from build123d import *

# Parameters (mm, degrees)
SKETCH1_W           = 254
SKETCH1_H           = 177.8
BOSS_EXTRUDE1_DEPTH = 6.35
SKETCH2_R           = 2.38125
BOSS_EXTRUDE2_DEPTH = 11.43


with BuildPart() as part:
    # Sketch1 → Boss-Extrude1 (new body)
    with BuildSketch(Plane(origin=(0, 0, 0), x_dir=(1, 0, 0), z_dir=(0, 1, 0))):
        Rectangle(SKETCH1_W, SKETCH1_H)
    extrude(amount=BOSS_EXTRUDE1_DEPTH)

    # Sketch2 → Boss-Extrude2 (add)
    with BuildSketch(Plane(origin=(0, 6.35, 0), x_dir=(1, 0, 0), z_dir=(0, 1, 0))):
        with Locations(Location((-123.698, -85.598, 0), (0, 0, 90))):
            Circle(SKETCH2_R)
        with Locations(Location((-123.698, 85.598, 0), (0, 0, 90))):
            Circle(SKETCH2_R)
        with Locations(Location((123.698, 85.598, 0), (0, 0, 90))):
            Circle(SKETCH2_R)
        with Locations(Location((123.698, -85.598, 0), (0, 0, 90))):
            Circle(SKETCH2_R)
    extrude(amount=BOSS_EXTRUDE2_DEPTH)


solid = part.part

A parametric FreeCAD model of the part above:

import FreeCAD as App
import Part
import Sketcher
from FreeCAD import Vector
Q = App.Units.Quantity


def add_polygon(sketch, points):
    """Adds a closed chain of lines whose ends are joined by coincident constraints."""
    first, n = sketch.GeometryCount, len(points)
    for a, b in zip(points, points[1:] + points[:1]):
        sketch.addGeometry(Part.LineSegment(App.Vector(*a, 0), App.Vector(*b, 0)), False)
    for i in range(n):
        sketch.addConstraint(Sketcher.Constraint("Coincident", first + i, 2, first + (i + 1) % n, 1))

doc = App.newDocument("Part")
body = doc.addObject("PartDesign::Body", "Body")

# Sketch on XZ plane
sketch1 = body.newObject("Sketcher::SketchObject", "Sketch")
sketch1.AttachmentSupport = (doc.getObject("XZ_Plane"), [""])
sketch1.MapMode = "FlatFace"
add_polygon(sketch1, [(-127, -89), (-127, 89), (127, 89), (127, -89)])  # lines 0-3
sketch1.addConstraint(Sketcher.Constraint("Vertical", 0))
sketch1.addConstraint(Sketcher.Constraint("Horizontal", 1))
sketch1.addConstraint(Sketcher.Constraint("Vertical", 2))
sketch1.addConstraint(Sketcher.Constraint("Horizontal", 3))
sketch1.addConstraint(Sketcher.Constraint("Symmetric", 0, 2, 2, 2, -1, 1))
sketch1.addConstraint(Sketcher.Constraint("DistanceX", 1, 1, 1, 2, Q("10 in")))
sketch1.addConstraint(Sketcher.Constraint("DistanceY", 0, 1, 0, 2, Q("7 in")))
pad1 = body.newObject("PartDesign::Pad", "Pad")
pad1.Profile = sketch1
pad1.Length = Q("0.25 in")
pad1.Reversed = True

# Sketch on XZ plane
sketch2 = body.newObject("Sketcher::SketchObject", "Sketch001")
sketch2.AttachmentSupport = (doc.getObject("XZ_Plane"), [""])
sketch2.MapMode = "FlatFace"
sketch2.AttachmentOffset = App.Placement(Vector(0, 0, -0.25 * 25.4), App.Rotation())
sketch2.addGeometry(Part.Circle(Vector(-123.7, 85.6, 0), Vector(0, 0, 1), 2.4), False)
sketch2.addGeometry(Part.Circle(Vector(-123.7, -85.6, 0), Vector(0, 0, 1), 2.4), False)
sketch2.addGeometry(Part.Circle(Vector(123.7, -85.6, 0), Vector(0, 0, 1), 2.4), False)
sketch2.addGeometry(Part.Circle(Vector(123.7, 85.6, 0), Vector(0, 0, 1), 2.4), False)
sketch2.addConstraint(Sketcher.Constraint("Equal", 0, 1))
sketch2.addConstraint(Sketcher.Constraint("Equal", 1, 2))
sketch2.addConstraint(Sketcher.Constraint("Equal", 2, 3))
sketch2.addConstraint(Sketcher.Constraint("Symmetric", 0, 3, 2, 3, -1, 1))
sketch2.addConstraint(Sketcher.Constraint("Symmetric", 1, 3, 3, 3, -1, 1))
sketch2.addConstraint(Sketcher.Constraint("Symmetric", 1, 3, 2, 3, -2))
sketch2.addConstraint(Sketcher.Constraint("Diameter", 0, Q("0.1875 in")))
sketch2.addConstraint(Sketcher.Constraint("DistanceX", 0, 3, -1, 1, Q("4.87 in")))
sketch2.addConstraint(Sketcher.Constraint("DistanceY", -1, 1, 0, 3, Q("3.37 in")))
pad2 = body.newObject("PartDesign::Pad", "Pad001")
pad2.Profile = sketch2
pad2.Length = Q("0.45 in")
pad2.Reversed = True

doc.recompute()
